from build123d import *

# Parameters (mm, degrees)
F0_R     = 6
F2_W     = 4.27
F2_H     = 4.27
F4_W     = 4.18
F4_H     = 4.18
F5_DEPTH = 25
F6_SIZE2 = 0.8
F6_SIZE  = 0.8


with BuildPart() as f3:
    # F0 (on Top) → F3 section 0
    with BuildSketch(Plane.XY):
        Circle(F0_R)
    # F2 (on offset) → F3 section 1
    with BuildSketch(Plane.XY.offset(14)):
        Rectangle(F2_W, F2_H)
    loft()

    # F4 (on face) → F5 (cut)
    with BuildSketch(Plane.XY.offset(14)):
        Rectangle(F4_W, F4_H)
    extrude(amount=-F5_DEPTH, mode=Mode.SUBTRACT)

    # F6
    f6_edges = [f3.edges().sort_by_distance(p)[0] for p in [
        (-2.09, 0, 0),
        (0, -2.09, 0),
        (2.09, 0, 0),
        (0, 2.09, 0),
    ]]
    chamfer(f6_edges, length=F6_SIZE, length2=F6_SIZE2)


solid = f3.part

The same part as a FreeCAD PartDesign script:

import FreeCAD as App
import Part
import Sketcher
from FreeCAD import Vector


def edges_at(feature, points):
    """Names of the edges that pass closest to the given points."""
    edges = feature.Shape.Edges
    near = lambda p: min(range(len(edges)), key=lambda i: edges[i].distToShape(Part.Vertex(*p))[0])
    return sorted({f"Edge{near(p) + 1}" for p in points})

doc = App.newDocument("Part")
body = doc.addObject("PartDesign::Body", "Body")

# Sketch on XY plane
sketch1 = body.newObject("Sketcher::SketchObject", "Sketch")
sketch1.AttachmentSupport = (doc.getObject("XY_Plane"), [""])
sketch1.MapMode = "FlatFace"
sketch1.addGeometry(Part.Circle(Vector(0, 0, 0), Vector(0, 0, 1), 6), False)
sketch1.addConstraint([
    Sketcher.Constraint("Coincident", 0, 3, -1, 1),
    Sketcher.Constraint("Diameter", 0, 12.0),
])

# Sketch on XY plane
sketch2 = body.newObject("Sketcher::SketchObject", "Sketch001")
sketch2.AttachmentSupport = (doc.getObject("XY_Plane"), [""])
sketch2.MapMode = "FlatFace"
sketch2.AttachmentOffset = App.Placement(Vector(0, 0, 14), App.Rotation())
sketch2.addGeometry([
    Part.LineSegment(Vector(-2.1, 2.1, 0), Vector(-2.1, -2.1, 0)),
    Part.LineSegment(Vector(-2.1, -2.1, 0), Vector(2.1, -2.1, 0)),
    Part.LineSegment(Vector(2.1, -2.1, 0), Vector(2.1, 2.1, 0)),
    Part.LineSegment(Vector(2.1, 2.1, 0), Vector(-2.1, 2.1, 0)),
], False)
sketch2.addConstraint([
    Sketcher.Constraint("Coincident", 0, 2, 1, 1),
    Sketcher.Constraint("Coincident", 1, 2, 2, 1),
    Sketcher.Constraint("Coincident", 2, 2, 3, 1),
    Sketcher.Constraint("Coincident", 3, 2, 0, 1),
    Sketcher.Constraint("Vertical", 0),
    Sketcher.Constraint("Horizontal", 1),
    Sketcher.Constraint("Vertical", 2),
    Sketcher.Constraint("Horizontal", 3),
    Sketcher.Constraint("Symmetric", 0, 2, 2, 2, -1, 1),
    Sketcher.Constraint("Equal", 3, 0),
    Sketcher.Constraint("DistanceX", 1, 1, 1, 2, 4.27),
])

additiveloft = body.newObject("PartDesign::AdditiveLoft", "AdditiveLoft")
additiveloft.Profile = sketch1
additiveloft.Sections = [sketch2]

# Sketch on XY plane
sketch3 = body.newObject("Sketcher::SketchObject", "Sketch002")
sketch3.AttachmentSupport = (doc.getObject("XY_Plane"), [""])
sketch3.MapMode = "FlatFace"
sketch3.AttachmentOffset = App.Placement(Vector(0, 0, 14), App.Rotation())
sketch3.addGeometry([
    Part.LineSegment(Vector(-2.1, 2.1, 0), Vector(-2.1, -2.1, 0)),
    Part.LineSegment(Vector(-2.1, -2.1, 0), Vector(2.1, -2.1, 0)),
    Part.LineSegment(Vector(2.1, -2.1, 0), Vector(2.1, 2.1, 0)),
    Part.LineSegment(Vector(2.1, 2.1, 0), Vector(-2.1, 2.1, 0)),
], False)
sketch3.addConstraint([
    Sketcher.Constraint("Coincident", 0, 2, 1, 1),
    Sketcher.Constraint("Coincident", 1, 2, 2, 1),
    Sketcher.Constraint("Coincident", 2, 2, 3, 1),
    Sketcher.Constraint("Coincident", 3, 2, 0, 1),
    Sketcher.Constraint("Vertical", 0),
    Sketcher.Constraint("Horizontal", 1),
    Sketcher.Constraint("Vertical", 2),
    Sketcher.Constraint("Horizontal", 3),
    Sketcher.Constraint("Symmetric", 0, 2, 2, 2, -1, 1),
    Sketcher.Constraint("Equal", 3, 0),
    Sketcher.Constraint("DistanceX", 1, 1, 1, 2, 4.18),
])
pocket1 = body.newObject("PartDesign::Pocket", "Pocket")
pocket1.Profile = sketch3
pocket1.Length = 25
doc.recompute()

chamfer = body.newObject("PartDesign::Chamfer", "Chamfer")
chamfer.Base = (pocket1, edges_at(pocket1, [
    (-2.09, 0, 0),
    (0, -2.09, 0),
    (2.09, 0, 0),
    (0, 2.09, 0),
]))
chamfer.ChamferType = "Two distances"
chamfer.Size = 0.8
chamfer.Size2 = 0.8

doc.recompute()
